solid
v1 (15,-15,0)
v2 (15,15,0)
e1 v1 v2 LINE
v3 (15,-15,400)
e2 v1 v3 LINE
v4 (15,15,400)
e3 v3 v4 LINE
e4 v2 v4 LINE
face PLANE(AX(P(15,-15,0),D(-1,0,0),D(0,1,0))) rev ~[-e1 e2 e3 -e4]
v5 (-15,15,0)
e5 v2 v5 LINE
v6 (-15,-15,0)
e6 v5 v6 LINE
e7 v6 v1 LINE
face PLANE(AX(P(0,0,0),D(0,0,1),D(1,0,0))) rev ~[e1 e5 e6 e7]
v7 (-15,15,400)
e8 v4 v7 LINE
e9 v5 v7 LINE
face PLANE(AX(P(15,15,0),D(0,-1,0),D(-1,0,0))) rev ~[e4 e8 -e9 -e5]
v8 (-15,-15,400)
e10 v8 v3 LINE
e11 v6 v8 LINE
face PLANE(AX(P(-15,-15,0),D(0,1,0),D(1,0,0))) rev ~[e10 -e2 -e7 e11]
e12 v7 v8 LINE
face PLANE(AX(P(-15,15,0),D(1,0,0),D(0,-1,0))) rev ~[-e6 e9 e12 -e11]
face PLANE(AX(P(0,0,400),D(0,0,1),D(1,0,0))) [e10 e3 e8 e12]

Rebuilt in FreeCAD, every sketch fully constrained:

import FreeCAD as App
import Part
import Sketcher


def add_polygon(sketch, points):
    """Adds a closed chain of lines whose ends are joined by coincident constraints."""
    first, n = sketch.GeometryCount, len(points)
    for a, b in zip(points, points[1:] + points[:1]):
        sketch.addGeometry(Part.LineSegment(App.Vector(*a, 0), App.Vector(*b, 0)), False)
    for i in range(n):
        sketch.addConstraint(Sketcher.Constraint("Coincident", first + i, 2, first + (i + 1) % n, 1))

doc = App.newDocument("Part")
body = doc.addObject("PartDesign::Body", "Body")

# Sketch on XY plane
sketch1 = body.newObject("Sketcher::SketchObject", "Sketch")
sketch1.AttachmentSupport = (doc.getObject("XY_Plane"), [""])
sketch1.MapMode = "FlatFace"
add_polygon(sketch1, [(-15, 15), (-15, -15), (15, -15), (15, 15)])  # lines 0-3
sketch1.addConstraint([
    Sketcher.Constraint("Vertical", 0),
    Sketcher.Constraint("Horizontal", 1),
    Sketcher.Constraint("Vertical", 2),
    Sketcher.Constraint("Horizontal", 3),
    Sketcher.Constraint("Symmetric", 0, 2, 2, 2, -1, 1),
    Sketcher.Constraint("Equal", 3, 0),
    Sketcher.Constraint("DistanceX", 1, 1, 1, 2, 30.0),
])
pad1 = body.newObject("PartDesign::Pad", "Pad")
pad1.Profile = sketch1
pad1.Length = 400

doc.recompute()
